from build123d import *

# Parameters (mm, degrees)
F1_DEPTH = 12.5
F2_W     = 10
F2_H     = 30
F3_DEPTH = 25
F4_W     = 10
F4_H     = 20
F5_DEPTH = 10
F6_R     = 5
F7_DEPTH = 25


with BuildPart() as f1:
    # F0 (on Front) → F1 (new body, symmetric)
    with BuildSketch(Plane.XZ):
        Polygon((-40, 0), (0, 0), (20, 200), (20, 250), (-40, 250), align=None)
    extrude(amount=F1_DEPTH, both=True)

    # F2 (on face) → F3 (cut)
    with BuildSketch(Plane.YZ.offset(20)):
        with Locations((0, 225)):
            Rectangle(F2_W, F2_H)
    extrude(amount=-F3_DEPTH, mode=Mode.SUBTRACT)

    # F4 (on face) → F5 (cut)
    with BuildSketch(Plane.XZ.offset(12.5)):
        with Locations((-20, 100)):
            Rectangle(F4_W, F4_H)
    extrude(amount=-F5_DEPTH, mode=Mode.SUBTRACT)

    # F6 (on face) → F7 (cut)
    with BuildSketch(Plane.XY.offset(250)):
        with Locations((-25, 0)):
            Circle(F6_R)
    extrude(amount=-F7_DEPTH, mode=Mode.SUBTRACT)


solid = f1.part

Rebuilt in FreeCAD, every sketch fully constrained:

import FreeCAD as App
import Part
import Sketcher

V = App.Vector
Q = App.Units.Quantity

doc = App.newDocument("Part")
body = doc.addObject("PartDesign::Body", "Body")

sketch1 = body.newObject("Sketcher::SketchObject", "Sketch")
sketch1.AttachmentSupport = (doc.getObject("XZ_Plane"), [""])
sketch1.MapMode = "FlatFace"
sketch1.addGeometry([
    Part.LineSegment(V(-40, 0, 0), V(0, 0, 0)),
    Part.LineSegment(V(0, 0, 0), V(20, 200, 0)),
    Part.LineSegment(V(20, 200, 0), V(20, 250, 0)),
    Part.LineSegment(V(20, 250, 0), V(-40, 250, 0)),
    Part.LineSegment(V(-40, 250, 0), V(-40, 0, 0)),
], False)
sketch1.addConstraint([
    Sketcher.Constraint("Coincident", 0, 2, 1, 1),
    Sketcher.Constraint("Coincident", 1, 2, 2, 1),
    Sketcher.Constraint("Coincident", 2, 2, 3, 1),
    Sketcher.Constraint("Coincident", 3, 2, 4, 1),
    Sketcher.Constraint("Coincident", 4, 2, 0, 1),
    Sketcher.Constraint("Horizontal", 0),
    Sketcher.Constraint("Vertical", 2),
    Sketcher.Constraint("Horizontal", 3),
    Sketcher.Constraint("Vertical", 4),
    Sketcher.Constraint("Coincident", 0, 2, -1, 1),
    Sketcher.Constraint("DistanceX", 0, 1, 0, 2, Q("40 mm")),
    Sketcher.Constraint("DistanceX", 3, 2, 3, 1, Q("60 mm")),
    Sketcher.Constraint("DistanceY", 2, 1, 2, 2, Q("50 mm")),
    Sketcher.Constraint("DistanceY", 4, 2, 4, 1, Q("250 mm")),
])
pad1 = body.newObject("PartDesign::Pad", "Pad")
pad1.Profile = sketch1
pad1.Length = 25
pad1.Midplane = True

sketch2 = body.newObject("Sketcher::SketchObject", "Sketch001")
sketch2.AttachmentSupport = (doc.getObject("YZ_Plane"), [""])
sketch2.MapMode = "FlatFace"
sketch2.AttachmentOffset = App.Placement(V(0, 0, 20), App.Rotation())
sketch2.addGeometry([
    Part.LineSegment(V(-5, 240, 0), V(-5, 210, 0)),
    Part.LineSegment(V(-5, 210, 0), V(5, 210, 0)),
    Part.LineSegment(V(5, 210, 0), V(5, 240, 0)),
    Part.LineSegment(V(5, 240, 0), V(-5, 240, 0)),
], False)
sketch2.addConstraint([
    Sketcher.Constraint("Coincident", 0, 2, 1, 1),
    Sketcher.Constraint("Coincident", 1, 2, 2, 1),
    Sketcher.Constraint("Coincident", 2, 2, 3, 1),
    Sketcher.Constraint("Coincident", 3, 2, 0, 1),
    Sketcher.Constraint("Vertical", 0),
    Sketcher.Constraint("Horizontal", 1),
    Sketcher.Constraint("Vertical", 2),
    Sketcher.Constraint("Horizontal", 3),
    Sketcher.Constraint("DistanceX", 1, 1, 1, 2, Q("10 mm")),
    Sketcher.Constraint("DistanceY", 0, 2, 0, 1, Q("30 mm")),
    Sketcher.Constraint("DistanceX", 0, 2, -1, 1, Q("5 mm")),
    Sketcher.Constraint("DistanceY", -1, 1, 0, 2, Q("210 mm")),
])
pocket1 = body.newObject("PartDesign::Pocket", "Pocket")
pocket1.Profile = sketch2
pocket1.Length = 25

sketch3 = body.newObject("Sketcher::SketchObject", "Sketch002")
sketch3.AttachmentSupport = (doc.getObject("XZ_Plane"), [""])
sketch3.MapMode = "FlatFace"
sketch3.AttachmentOffset = App.Placement(V(0, 0, 12.5), App.Rotation())
sketch3.addGeometry([
    Part.LineSegment(V(-25, 110, 0), V(-25, 90, 0)),
    Part.LineSegment(V(-25, 90, 0), V(-15, 90, 0)),
    Part.LineSegment(V(-15, 90, 0), V(-15, 110, 0)),
    Part.LineSegment(V(-15, 110, 0), V(-25, 110, 0)),
], False)
sketch3.addConstraint([
    Sketcher.Constraint("Coincident", 0, 2, 1, 1),
    Sketcher.Constraint("Coincident", 1, 2, 2, 1),
    Sketcher.Constraint("Coincident", 2, 2, 3, 1),
    Sketcher.Constraint("Coincident", 3, 2, 0, 1),
    Sketcher.Constraint("Vertical", 0),
    Sketcher.Constraint("Horizontal", 1),
    Sketcher.Constraint("Vertical", 2),
    Sketcher.Constraint("Horizontal", 3),
    Sketcher.Constraint("DistanceX", 1, 1, 1, 2, Q("10 mm")),
    Sketcher.Constraint("DistanceY", 0, 2, 0, 1, Q("20 mm")),
    Sketcher.Constraint("DistanceX", 0, 2, -1, 1, Q("25 mm")),
    Sketcher.Constraint("DistanceY", -1, 1, 0, 2, Q("90 mm")),
])
pocket2 = body.newObject("PartDesign::Pocket", "Pocket001")
pocket2.Profile = sketch3
pocket2.Length = 10

sketch4 = body.newObject("Sketcher::SketchObject", "Sketch003")
sketch4.AttachmentSupport = (doc.getObject("XY_Plane"), [""])
sketch4.MapMode = "FlatFace"
sketch4.AttachmentOffset = App.Placement(V(0, 0, 250), App.Rotation())
sketch4.addGeometry(Part.Circle(V(-25, 0, 0), V(0, 0, 1), 5), False)
sketch4.addConstraint([
    Sketcher.Constraint("PointOnObject", 0, 3, -1),
    Sketcher.Constraint("Diameter", 0, Q("10 mm")),
    Sketcher.Constraint("DistanceX", 0, 3, -1, 1, Q("25 mm")),
])
pocket3 = body.newObject("PartDesign::Pocket", "Pocket002")
pocket3.Profile = sketch4
pocket3.Length = 25

doc.recompute()
